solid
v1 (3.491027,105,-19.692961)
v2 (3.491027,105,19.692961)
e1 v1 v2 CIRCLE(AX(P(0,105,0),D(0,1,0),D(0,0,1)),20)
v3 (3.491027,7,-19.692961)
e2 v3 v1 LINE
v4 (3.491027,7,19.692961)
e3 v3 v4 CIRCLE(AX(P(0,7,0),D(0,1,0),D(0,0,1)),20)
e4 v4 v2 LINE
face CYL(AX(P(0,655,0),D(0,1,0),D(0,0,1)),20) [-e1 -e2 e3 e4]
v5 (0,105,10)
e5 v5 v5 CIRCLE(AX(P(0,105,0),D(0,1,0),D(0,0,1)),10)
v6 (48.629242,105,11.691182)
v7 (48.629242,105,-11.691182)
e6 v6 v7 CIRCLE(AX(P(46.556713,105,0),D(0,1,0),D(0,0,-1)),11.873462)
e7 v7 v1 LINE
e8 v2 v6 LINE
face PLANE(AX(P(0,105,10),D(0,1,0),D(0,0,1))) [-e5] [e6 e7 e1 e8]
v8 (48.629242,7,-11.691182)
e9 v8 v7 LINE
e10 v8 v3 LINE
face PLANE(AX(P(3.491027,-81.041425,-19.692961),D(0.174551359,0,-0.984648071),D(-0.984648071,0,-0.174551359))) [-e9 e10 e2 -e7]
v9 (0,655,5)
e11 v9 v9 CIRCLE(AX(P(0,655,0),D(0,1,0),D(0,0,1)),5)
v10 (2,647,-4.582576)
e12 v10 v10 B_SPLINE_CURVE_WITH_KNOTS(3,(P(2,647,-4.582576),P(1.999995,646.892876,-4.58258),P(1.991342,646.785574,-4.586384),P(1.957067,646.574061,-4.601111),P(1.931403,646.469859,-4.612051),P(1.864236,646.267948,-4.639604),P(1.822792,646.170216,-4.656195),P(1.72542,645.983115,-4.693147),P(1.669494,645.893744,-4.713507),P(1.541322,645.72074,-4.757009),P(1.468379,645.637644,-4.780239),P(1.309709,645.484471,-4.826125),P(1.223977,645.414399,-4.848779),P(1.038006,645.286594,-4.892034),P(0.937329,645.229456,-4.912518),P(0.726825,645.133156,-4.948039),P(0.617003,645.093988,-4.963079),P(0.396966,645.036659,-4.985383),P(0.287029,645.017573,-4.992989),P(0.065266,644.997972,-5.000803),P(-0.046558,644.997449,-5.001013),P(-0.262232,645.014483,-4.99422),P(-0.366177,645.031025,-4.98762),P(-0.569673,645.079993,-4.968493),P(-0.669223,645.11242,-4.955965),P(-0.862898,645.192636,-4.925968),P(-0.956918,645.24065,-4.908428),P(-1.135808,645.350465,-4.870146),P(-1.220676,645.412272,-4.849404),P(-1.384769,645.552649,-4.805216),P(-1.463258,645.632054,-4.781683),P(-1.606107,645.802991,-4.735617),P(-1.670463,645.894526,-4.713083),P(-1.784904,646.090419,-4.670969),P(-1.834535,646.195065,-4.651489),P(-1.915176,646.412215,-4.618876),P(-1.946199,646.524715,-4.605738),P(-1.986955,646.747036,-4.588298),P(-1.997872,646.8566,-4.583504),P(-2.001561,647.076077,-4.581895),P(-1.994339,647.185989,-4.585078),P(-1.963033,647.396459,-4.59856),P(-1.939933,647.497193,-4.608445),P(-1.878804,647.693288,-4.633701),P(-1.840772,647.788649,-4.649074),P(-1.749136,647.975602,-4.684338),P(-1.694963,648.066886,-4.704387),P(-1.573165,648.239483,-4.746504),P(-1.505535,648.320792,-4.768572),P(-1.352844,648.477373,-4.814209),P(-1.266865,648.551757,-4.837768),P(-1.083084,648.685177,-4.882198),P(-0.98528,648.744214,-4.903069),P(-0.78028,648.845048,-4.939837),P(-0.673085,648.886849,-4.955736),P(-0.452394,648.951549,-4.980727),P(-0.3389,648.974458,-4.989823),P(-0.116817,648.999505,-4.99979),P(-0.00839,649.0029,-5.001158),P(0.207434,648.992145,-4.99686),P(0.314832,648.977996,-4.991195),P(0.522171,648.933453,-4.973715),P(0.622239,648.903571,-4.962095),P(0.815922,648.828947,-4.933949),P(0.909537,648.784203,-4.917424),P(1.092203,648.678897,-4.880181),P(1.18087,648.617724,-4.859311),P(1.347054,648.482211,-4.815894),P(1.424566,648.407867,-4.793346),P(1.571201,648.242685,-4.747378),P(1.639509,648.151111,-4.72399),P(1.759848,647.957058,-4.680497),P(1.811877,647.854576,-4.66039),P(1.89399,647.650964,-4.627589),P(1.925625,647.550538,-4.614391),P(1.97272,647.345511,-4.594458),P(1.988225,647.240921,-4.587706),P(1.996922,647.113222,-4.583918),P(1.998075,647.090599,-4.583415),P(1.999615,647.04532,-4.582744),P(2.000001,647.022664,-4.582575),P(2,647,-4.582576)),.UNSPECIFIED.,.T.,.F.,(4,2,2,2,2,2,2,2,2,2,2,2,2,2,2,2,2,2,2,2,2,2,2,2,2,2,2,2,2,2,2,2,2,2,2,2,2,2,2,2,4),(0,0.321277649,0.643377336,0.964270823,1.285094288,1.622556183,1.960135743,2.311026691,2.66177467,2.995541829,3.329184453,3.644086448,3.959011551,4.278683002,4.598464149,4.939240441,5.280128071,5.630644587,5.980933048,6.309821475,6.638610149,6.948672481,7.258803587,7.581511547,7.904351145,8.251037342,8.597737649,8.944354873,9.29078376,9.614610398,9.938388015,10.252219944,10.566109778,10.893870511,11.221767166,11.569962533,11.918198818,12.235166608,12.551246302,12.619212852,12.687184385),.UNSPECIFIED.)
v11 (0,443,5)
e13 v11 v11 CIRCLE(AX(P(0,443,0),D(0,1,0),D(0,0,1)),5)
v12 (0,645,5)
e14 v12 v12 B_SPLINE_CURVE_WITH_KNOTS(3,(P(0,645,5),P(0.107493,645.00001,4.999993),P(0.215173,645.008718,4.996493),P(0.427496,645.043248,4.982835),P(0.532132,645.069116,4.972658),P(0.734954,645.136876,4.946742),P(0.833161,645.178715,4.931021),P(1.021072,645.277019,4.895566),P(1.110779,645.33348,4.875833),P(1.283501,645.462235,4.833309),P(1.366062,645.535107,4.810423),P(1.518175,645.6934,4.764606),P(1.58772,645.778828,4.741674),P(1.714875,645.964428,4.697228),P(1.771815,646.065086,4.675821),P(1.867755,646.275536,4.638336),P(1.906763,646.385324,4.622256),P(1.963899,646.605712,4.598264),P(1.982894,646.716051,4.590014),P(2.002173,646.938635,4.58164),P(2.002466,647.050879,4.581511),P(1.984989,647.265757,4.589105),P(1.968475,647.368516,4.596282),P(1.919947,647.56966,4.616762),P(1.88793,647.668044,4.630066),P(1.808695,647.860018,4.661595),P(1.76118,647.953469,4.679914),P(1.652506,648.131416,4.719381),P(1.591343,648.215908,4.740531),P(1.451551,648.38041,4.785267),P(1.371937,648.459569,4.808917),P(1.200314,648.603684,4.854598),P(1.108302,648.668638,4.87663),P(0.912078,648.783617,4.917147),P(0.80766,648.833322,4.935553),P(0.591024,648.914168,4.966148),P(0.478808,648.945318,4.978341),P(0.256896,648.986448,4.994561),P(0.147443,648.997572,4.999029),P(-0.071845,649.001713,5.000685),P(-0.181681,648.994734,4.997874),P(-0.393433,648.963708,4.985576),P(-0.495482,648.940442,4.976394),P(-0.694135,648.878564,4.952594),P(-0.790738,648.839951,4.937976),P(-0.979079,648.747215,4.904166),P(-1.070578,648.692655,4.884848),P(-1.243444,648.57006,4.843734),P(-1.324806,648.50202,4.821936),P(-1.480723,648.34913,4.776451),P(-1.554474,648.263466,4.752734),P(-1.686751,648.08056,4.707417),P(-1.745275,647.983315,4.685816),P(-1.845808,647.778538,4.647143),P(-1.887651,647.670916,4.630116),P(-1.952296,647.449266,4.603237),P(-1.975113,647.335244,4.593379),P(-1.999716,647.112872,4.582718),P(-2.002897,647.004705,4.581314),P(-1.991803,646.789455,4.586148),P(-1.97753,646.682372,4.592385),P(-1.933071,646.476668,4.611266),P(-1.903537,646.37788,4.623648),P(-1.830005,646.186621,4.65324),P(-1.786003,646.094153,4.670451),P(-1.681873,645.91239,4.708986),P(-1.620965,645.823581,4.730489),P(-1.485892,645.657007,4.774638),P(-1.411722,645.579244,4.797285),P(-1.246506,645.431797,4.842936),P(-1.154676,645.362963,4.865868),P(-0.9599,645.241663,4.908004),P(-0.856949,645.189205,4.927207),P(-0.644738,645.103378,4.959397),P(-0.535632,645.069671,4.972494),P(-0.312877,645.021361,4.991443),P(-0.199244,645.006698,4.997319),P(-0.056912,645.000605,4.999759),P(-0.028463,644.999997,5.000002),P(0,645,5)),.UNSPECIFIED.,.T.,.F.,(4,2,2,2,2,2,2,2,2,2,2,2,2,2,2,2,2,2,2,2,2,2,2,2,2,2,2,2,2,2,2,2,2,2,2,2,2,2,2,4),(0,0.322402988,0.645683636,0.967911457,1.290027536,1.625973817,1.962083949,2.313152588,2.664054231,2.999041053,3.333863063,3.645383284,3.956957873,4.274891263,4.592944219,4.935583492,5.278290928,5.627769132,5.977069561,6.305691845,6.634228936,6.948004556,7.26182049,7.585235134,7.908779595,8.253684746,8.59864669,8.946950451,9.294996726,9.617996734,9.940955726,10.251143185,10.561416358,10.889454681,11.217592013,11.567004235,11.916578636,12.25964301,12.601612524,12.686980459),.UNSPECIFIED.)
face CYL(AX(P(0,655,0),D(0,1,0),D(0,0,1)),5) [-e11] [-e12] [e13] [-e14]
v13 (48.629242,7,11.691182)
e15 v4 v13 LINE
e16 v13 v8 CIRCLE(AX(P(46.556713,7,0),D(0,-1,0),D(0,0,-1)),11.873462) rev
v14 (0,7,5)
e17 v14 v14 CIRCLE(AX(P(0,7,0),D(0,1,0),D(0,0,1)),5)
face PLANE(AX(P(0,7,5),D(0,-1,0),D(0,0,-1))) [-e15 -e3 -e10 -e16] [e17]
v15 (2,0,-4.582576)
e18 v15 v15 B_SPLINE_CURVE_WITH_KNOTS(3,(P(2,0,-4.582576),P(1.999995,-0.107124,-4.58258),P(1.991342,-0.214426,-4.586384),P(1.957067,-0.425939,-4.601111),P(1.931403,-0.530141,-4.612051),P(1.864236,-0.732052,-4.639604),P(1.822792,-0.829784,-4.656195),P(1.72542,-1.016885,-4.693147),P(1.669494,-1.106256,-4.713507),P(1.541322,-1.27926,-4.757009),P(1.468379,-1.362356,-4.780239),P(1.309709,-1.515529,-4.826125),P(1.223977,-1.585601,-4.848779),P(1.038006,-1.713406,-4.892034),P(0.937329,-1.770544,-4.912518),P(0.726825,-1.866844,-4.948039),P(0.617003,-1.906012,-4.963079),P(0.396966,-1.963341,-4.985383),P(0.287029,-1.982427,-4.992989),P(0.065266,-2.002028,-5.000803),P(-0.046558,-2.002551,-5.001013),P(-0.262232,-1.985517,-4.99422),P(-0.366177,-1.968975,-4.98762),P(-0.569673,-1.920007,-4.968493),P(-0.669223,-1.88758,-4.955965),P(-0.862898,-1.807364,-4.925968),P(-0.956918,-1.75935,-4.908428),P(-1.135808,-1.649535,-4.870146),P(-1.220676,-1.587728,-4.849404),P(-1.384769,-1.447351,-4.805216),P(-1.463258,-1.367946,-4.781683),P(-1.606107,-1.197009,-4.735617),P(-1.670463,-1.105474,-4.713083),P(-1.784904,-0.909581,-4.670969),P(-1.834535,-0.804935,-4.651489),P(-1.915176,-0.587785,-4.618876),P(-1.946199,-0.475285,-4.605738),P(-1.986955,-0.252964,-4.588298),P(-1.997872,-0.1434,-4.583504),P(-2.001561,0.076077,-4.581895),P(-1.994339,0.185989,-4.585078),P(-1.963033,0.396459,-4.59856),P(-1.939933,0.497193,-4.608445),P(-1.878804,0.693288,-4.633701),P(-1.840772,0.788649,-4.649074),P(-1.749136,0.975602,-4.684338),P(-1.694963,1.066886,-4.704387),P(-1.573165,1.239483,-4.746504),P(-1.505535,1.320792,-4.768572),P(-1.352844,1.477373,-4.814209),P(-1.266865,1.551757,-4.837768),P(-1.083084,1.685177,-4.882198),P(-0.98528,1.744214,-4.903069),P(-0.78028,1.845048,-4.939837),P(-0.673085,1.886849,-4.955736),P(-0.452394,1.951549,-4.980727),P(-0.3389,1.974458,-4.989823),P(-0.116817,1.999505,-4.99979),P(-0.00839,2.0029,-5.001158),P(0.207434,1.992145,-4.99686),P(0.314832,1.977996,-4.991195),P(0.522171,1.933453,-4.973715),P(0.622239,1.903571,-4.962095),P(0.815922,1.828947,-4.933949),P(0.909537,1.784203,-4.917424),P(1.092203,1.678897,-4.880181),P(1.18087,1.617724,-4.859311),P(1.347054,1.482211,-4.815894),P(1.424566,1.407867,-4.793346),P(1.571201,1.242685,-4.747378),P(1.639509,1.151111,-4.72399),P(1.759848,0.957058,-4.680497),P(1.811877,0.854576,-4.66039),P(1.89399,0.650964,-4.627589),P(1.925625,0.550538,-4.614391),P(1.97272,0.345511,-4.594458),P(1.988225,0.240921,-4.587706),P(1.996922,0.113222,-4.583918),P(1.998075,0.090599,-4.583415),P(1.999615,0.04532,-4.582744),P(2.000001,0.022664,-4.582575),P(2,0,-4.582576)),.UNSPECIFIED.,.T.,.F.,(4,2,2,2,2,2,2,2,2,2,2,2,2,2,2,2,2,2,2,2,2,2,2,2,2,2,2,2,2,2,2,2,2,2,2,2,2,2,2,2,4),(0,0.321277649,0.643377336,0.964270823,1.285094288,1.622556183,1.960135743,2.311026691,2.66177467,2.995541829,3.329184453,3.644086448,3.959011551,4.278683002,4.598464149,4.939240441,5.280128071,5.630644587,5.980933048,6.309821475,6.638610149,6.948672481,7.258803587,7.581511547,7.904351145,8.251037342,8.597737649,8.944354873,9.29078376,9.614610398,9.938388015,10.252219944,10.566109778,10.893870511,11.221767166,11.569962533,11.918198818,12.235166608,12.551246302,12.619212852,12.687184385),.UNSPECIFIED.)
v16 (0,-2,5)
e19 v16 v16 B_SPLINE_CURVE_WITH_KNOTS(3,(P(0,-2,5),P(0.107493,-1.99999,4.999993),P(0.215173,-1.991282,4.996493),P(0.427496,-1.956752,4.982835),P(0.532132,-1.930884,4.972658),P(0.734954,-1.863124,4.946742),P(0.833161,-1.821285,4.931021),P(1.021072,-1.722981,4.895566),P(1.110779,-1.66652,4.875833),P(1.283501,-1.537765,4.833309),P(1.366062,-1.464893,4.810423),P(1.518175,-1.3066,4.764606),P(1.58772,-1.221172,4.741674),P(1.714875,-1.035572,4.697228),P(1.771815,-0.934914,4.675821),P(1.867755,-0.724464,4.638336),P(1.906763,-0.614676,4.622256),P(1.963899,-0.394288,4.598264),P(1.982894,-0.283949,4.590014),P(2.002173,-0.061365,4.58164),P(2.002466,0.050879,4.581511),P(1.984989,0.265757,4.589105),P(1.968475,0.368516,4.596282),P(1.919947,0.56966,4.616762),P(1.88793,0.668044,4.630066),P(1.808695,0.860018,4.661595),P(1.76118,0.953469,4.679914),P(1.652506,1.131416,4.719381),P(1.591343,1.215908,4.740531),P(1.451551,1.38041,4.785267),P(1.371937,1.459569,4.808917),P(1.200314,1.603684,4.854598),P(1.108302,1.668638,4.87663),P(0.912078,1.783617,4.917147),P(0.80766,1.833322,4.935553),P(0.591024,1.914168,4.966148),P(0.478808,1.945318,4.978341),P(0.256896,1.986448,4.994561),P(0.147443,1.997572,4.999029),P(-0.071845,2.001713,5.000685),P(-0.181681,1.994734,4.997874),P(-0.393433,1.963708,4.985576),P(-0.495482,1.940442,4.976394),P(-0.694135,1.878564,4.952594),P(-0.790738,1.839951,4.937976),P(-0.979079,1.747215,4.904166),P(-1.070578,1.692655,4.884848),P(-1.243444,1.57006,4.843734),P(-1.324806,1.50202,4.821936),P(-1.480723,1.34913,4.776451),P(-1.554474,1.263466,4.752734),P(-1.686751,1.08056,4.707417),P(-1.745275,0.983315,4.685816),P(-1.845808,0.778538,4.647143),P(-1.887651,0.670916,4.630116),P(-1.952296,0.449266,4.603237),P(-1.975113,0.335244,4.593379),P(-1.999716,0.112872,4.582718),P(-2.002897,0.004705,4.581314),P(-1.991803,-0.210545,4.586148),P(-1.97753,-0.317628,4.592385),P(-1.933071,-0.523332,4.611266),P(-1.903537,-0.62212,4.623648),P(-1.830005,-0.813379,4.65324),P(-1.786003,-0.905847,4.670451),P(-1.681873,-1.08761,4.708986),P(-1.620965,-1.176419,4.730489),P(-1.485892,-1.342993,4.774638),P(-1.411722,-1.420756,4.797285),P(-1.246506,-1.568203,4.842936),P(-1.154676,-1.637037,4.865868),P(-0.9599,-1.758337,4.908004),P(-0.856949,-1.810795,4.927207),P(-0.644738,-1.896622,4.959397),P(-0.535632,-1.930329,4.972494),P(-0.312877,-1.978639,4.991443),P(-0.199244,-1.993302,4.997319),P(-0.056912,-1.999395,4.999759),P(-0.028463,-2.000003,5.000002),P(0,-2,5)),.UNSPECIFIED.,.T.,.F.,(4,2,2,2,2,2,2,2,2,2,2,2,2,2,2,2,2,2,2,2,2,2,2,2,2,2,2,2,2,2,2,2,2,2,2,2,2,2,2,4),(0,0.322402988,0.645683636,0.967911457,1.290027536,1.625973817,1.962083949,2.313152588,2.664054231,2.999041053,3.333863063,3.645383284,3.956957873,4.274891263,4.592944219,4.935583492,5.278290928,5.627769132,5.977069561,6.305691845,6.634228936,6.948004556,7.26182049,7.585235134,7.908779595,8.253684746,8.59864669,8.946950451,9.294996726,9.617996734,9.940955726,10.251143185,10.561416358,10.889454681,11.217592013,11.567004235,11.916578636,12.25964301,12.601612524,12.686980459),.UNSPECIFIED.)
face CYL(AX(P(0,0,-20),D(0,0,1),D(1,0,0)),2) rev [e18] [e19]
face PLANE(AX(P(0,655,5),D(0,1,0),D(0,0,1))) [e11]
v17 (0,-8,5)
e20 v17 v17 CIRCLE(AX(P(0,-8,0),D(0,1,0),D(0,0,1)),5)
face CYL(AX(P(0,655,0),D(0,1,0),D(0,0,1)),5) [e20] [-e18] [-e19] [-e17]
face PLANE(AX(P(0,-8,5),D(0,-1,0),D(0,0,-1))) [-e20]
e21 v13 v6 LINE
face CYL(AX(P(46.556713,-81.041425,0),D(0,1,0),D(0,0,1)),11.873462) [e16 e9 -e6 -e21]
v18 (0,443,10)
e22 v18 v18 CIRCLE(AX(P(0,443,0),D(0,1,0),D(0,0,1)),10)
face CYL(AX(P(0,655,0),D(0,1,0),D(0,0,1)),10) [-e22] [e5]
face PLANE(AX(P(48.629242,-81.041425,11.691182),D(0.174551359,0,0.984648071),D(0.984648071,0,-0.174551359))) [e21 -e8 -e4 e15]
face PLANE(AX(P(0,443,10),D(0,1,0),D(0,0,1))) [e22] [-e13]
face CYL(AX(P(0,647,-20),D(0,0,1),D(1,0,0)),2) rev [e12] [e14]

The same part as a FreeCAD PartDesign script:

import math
import FreeCAD as App
import Part
import Sketcher
from FreeCAD import Vector
Q = App.Units.Quantity


def add_polygon(sketch, points):
    """Adds a closed chain of lines whose ends are joined by coincident constraints."""
    first, n = sketch.GeometryCount, len(points)
    for a, b in zip(points, points[1:] + points[:1]):
        sketch.addGeometry(Part.LineSegment(App.Vector(*a, 0), App.Vector(*b, 0)), False)
    for i in range(n):
        sketch.addConstraint(Sketcher.Constraint("Coincident", first + i, 2, first + (i + 1) % n, 1))

doc = App.newDocument("Part")
params = doc.addObject("Spreadsheet::Sheet", "Params")
for row, (alias, value) in enumerate([
    ("sketch1_width", "98 mm"),
    ("sketch1_width2", "15 mm"),
    ("sketch1_width3", "663 mm"),
    ("sketch1_width4", "212 mm"),
    ("sketch1_height", "5 mm"),
    ("revolution_angle", "360 deg"),
    ("sketch2_diameter", "4 mm"),
    ("sketch3_radius", "20 mm"),
    ("pad1_length", "98 mm"),
], start=1):
    params.set(f"A{row}", alias)
    params.set(f"B{row}", "=" + value)
    params.setAlias(f"B{row}", alias)

body = doc.addObject("PartDesign::Body", "Body")

# Sketch on YZ plane
sketch1 = doc.addObject("Sketcher::SketchObject", "Sketch")
body.addObject(sketch1)
sketch1.AttachmentSupport = (doc.YZ_Plane, [""])
sketch1.MapMode = "FlatFace"
add_polygon(sketch1, [(105, 20), (7, 20), (7, 5), (-8, 5), (-8, 0), (655, 0), (655, 5), (443, 5), (443, 10), (105, 10)])  # lines 0-9
sketch1.addConstraint([
    Sketcher.Constraint("Horizontal", 0),
    Sketcher.Constraint("Vertical", 1),
    Sketcher.Constraint("Horizontal", 2),
    Sketcher.Constraint("Vertical", 3),
    Sketcher.Constraint("Horizontal", 4),
    Sketcher.Constraint("Vertical", 5),
    Sketcher.Constraint("Horizontal", 6),
    Sketcher.Constraint("Vertical", 7),
    Sketcher.Constraint("Horizontal", 8),
    Sketcher.Constraint("Vertical", 9),
    Sketcher.Constraint("PointOnObject", 3, 2, -1),
    Sketcher.Constraint("Horizontal", 2, 2, 5, 2),
    Sketcher.Constraint("Equal", 2, 1),
    Sketcher.Constraint("Equal", 5, 7),
    Sketcher.Constraint("DistanceX", 0, 2, 0, 1, Q("98 mm")),
    Sketcher.Constraint("DistanceX", 2, 2, 2, 1, Q("15 mm")),
    Sketcher.Constraint("DistanceX", 4, 1, 4, 2, Q("663 mm")),
    Sketcher.Constraint("DistanceX", 6, 2, 6, 1, Q("212 mm")),
    Sketcher.Constraint("DistanceY", 3, 2, 3, 1, Q("5 mm")),
    Sketcher.Constraint("DistanceX", -1, 1, 0, 2, Q("7 mm")),
])
sketch1.setExpression("Constraints[24]", "Params.sketch1_width")
sketch1.setExpression("Constraints[25]", "Params.sketch1_width2")
sketch1.setExpression("Constraints[26]", "Params.sketch1_width3")
sketch1.setExpression("Constraints[27]", "Params.sketch1_width4")
sketch1.setExpression("Constraints[28]", "Params.sketch1_height")
revolution = doc.addObject("PartDesign::Revolution", "Revolution")
body.addObject(revolution)
revolution.Profile = sketch1
revolution.ReferenceAxis = (sketch1, ["H_Axis"])
revolution.setExpression("Angle", "Params.revolution_angle")

# Sketch on XY plane
sketch2 = doc.addObject("Sketcher::SketchObject", "Sketch001")
body.addObject(sketch2)
sketch2.AttachmentSupport = (doc.XY_Plane, [""])
sketch2.MapMode = "FlatFace"
sketch2.addGeometry([
    Part.Circle(Vector(0, 647, 0), Vector(0, 0, 1), 2),
    Part.Circle(Vector(0, 0, 0), Vector(0, 0, 1), 2),
], False)
sketch2.addConstraint([
    Sketcher.Constraint("Coincident", 1, 3, -1, 1),
    Sketcher.Constraint("Equal", 0, 1),
    Sketcher.Constraint("PointOnObject", 0, 3, -2),
    Sketcher.Constraint("Diameter", 0, Q("4 mm")),
    Sketcher.Constraint("DistanceY", -1, 1, 0, 3, Q("647 mm")),
])
sketch2.setExpression("Constraints[3]", "Params.sketch2_diameter")
pocket1 = doc.addObject("PartDesign::Pocket", "Pocket")
body.addObject(pocket1)
pocket1.Profile = sketch2
pocket1.Type = "ThroughAll"
pocket1.Midplane = True

# Sketch on XZ plane
sketch3 = doc.addObject("Sketcher::SketchObject", "Sketch002")
body.addObject(sketch3)
sketch3.AttachmentSupport = (doc.XZ_Plane, [""])
sketch3.MapMode = "FlatFace"
sketch3.AttachmentOffset = App.Placement(Vector(0, 0, -105), App.Rotation())
sketch3.addGeometry([
    Part.LineSegment(Vector(48.629242, -11.691182, 0), Vector(3.491027, -19.692961, 0)),
    Part.ArcOfCircle(Part.Circle(Vector(0, 0, 0), Vector(0, 0, 1), 20), math.radians(79.947449), math.radians(280.052551)),
    Part.LineSegment(Vector(3.491027, 19.692961, 0), Vector(48.629242, 11.691182, 0)),
    Part.ArcOfCircle(Part.Circle(Vector(46.556713, 0, 0), Vector(0, 0, 1), 11.873462), math.radians(-79.947449), math.radians(79.947449)),
], False)
sketch3.addConstraint([
    Sketcher.Constraint("Coincident", 0, 2, 1, 2),
    Sketcher.Constraint("Coincident", 1, 1, 2, 1),
    Sketcher.Constraint("Coincident", 2, 2, 3, 2),
    Sketcher.Constraint("Coincident", 3, 1, 0, 1),
    Sketcher.Constraint("Coincident", 1, 3, -1, 1),
    Sketcher.Constraint("PointOnObject", 3, 3, -1),
    Sketcher.Constraint("Radius", 1, Q("20 mm")),
    Sketcher.Constraint("Radius", 3, Q("11.873462 mm")),
    Sketcher.Constraint("DistanceY", 0, 2, -1, 1, Q("19.692961 mm")),
    Sketcher.Constraint("DistanceY", -1, 1, 1, 1, Q("19.692961 mm")),
    Sketcher.Constraint("DistanceY", -1, 1, 2, 2, Q("11.691182 mm")),
    Sketcher.Constraint("DistanceY", 3, 1, -1, 1, Q("11.691182 mm")),
    Sketcher.Constraint("Distance", 0, Q("45.841978 mm")),
])
sketch3.setExpression("Constraints[6]", "Params.sketch3_radius")
pad1 = doc.addObject("PartDesign::Pad", "Pad")
body.addObject(pad1)
pad1.Profile = sketch3
pad1.setExpression("Length", "Params.pad1_length")

doc.recompute()
